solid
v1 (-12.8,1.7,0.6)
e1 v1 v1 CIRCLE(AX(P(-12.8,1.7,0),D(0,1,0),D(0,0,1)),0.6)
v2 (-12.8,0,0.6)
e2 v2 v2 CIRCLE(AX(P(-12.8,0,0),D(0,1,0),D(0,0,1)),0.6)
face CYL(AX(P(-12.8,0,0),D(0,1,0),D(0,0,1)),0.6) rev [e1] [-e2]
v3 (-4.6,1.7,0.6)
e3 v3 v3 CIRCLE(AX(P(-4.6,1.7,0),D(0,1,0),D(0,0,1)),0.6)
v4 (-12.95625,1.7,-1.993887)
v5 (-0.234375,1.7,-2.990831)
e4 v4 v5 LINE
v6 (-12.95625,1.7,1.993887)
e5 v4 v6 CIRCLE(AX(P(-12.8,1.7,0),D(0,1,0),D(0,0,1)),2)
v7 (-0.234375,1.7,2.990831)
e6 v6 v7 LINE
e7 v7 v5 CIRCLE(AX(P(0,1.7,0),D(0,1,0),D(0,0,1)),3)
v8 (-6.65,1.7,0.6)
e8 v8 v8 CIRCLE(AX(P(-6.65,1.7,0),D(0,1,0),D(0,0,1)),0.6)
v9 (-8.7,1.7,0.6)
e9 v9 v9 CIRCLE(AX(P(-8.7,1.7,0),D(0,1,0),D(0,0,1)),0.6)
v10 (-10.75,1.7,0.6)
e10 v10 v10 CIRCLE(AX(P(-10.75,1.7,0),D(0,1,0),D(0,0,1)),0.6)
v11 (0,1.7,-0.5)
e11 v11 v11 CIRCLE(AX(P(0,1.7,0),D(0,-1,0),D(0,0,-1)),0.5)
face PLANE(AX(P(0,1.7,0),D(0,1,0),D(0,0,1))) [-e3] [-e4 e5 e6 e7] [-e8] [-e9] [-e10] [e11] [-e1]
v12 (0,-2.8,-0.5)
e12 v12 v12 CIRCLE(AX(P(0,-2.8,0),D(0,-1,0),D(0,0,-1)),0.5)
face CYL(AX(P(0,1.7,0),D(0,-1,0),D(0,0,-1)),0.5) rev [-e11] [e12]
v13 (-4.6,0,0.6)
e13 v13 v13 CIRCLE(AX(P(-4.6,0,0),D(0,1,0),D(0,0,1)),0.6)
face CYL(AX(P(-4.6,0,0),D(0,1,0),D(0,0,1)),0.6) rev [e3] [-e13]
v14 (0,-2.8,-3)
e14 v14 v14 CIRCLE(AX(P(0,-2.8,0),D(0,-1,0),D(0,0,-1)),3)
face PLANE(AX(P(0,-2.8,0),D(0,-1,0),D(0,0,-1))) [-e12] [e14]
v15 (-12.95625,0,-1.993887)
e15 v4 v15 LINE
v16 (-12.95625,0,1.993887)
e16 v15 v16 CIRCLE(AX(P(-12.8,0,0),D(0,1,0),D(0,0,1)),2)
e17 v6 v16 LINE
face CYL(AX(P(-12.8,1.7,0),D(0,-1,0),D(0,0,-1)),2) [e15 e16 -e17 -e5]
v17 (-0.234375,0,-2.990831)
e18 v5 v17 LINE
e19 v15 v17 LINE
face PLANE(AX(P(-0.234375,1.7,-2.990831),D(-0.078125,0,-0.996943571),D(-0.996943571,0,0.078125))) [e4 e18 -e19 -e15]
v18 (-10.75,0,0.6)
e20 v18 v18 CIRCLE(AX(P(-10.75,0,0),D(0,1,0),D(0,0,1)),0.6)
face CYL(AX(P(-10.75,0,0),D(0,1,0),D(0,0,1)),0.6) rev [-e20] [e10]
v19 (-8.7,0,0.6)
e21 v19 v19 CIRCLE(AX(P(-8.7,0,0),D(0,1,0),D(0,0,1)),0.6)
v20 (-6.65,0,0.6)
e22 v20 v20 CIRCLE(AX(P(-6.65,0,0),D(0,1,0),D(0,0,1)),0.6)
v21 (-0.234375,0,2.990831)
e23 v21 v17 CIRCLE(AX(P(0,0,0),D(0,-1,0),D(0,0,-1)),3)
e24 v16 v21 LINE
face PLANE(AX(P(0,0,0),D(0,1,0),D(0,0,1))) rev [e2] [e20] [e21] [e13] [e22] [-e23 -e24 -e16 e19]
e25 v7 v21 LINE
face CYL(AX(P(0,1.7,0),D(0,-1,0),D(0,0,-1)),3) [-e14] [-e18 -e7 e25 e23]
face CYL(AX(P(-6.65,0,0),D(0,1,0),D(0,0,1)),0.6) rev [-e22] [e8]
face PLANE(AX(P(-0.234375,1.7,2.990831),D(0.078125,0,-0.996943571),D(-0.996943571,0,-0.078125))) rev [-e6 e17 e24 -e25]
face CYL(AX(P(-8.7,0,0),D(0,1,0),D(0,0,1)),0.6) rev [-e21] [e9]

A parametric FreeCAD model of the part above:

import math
import FreeCAD as App
import Part
import Sketcher
Q = App.Units.Quantity

doc = App.newDocument("Part")
body = doc.addObject("PartDesign::Body", "Body")

# Sketch on XZ plane
sketch1 = doc.addObject("Sketcher::SketchObject", "Sketch")
body.addObject(sketch1)
sketch1.AttachmentSupport = (doc.XZ_Plane, [""])
sketch1.MapMode = "FlatFace"
sketch1.addGeometry([
    Part.ArcOfCircle(Part.Circle(App.Vector(-12.8, 0, 0), App.Vector(0, 0, 1), 2), math.radians(180), math.radians(266)),  # 0
    Part.ArcOfCircle(Part.Circle(App.Vector(-12.8, 0, 0), App.Vector(0, 0, 1), 2), math.radians(94), math.radians(180)),  # 1
    Part.LineSegment(App.Vector(-13, 2, 0), App.Vector(-0.2, 3, 0)),  # 2
    Part.ArcOfCircle(Part.Circle(App.Vector(0, 0, 0), App.Vector(0, 0, 1), 3), math.radians(0), math.radians(94)),  # 3
    Part.ArcOfCircle(Part.Circle(App.Vector(0, 0, 0), App.Vector(0, 0, 1), 3), math.radians(-94), math.radians(0)),  # 4
    Part.LineSegment(App.Vector(-0.2, -3, 0), App.Vector(-13, -2, 0)),  # 5
], False)
sketch1.addConstraint([
    Sketcher.Constraint("Tangent", 0, 1, 1, 2),
    Sketcher.Constraint("Tangent", 1, 1, 2, 1),
    Sketcher.Constraint("Tangent", 2, 2, 3, 2),
    Sketcher.Constraint("Tangent", 3, 1, 4, 2),
    Sketcher.Constraint("Tangent", 4, 1, 5, 1),
    Sketcher.Constraint("Tangent", 5, 2, 0, 2),
    Sketcher.Constraint("Coincident", 3, 3, -1, 1),
    Sketcher.Constraint("Equal", 0, 1),
    Sketcher.Constraint("Equal", 3, 4),
    Sketcher.Constraint("PointOnObject", 0, 3, -1),
    Sketcher.Constraint("PointOnObject", 0, 1, -1),
    Sketcher.Constraint("PointOnObject", 3, 1, -1),
    Sketcher.Constraint("Radius", 0, Q("2 mm")),
    Sketcher.Constraint("Radius", 3, Q("3 mm")),
    Sketcher.Constraint("DistanceX", 0, 3, -1, 1, Q("12.8 mm")),
])
pad1 = doc.addObject("PartDesign::Pad", "Pad")
body.addObject(pad1)
pad1.Profile = sketch1
pad1.Length = 1.7
pad1.Reversed = True

# Sketch on XZ plane
sketch2 = doc.addObject("Sketcher::SketchObject", "Sketch001")
body.addObject(sketch2)
sketch2.AttachmentSupport = (doc.XZ_Plane, [""])
sketch2.MapMode = "FlatFace"
sketch2.AttachmentOffset = App.Placement(App.Vector(0, 0, -1.7), App.Rotation())
sketch2.addGeometry([
    Part.Circle(App.Vector(-12.8, 0, 0), App.Vector(0, 0, 1), 0.6),  # 0
    Part.Circle(App.Vector(-10.8, 0, 0), App.Vector(0, 0, 1), 0.6),  # 1
    Part.Circle(App.Vector(-8.7, 0, 0), App.Vector(0, 0, 1), 0.6),  # 2
    Part.Circle(App.Vector(-6.7, 0, 0), App.Vector(0, 0, 1), 0.6),  # 3
    Part.Circle(App.Vector(-4.6, 0, 0), App.Vector(0, 0, 1), 0.6),  # 4
], False)
sketch2.addConstraint([
    Sketcher.Constraint("Equal", 0, 1),
    Sketcher.Constraint("Equal", 1, 2),
    Sketcher.Constraint("Equal", 2, 3),
    Sketcher.Constraint("Equal", 3, 4),
    Sketcher.Constraint("PointOnObject", 0, 3, -1),
    Sketcher.Constraint("PointOnObject", 1, 3, -1),
    Sketcher.Constraint("PointOnObject", 2, 3, -1),
    Sketcher.Constraint("PointOnObject", 3, 3, -1),
    Sketcher.Constraint("PointOnObject", 4, 3, -1),
    Sketcher.Constraint("Diameter", 0, Q("1.2 mm")),
    Sketcher.Constraint("DistanceX", 0, 3, -1, 1, Q("12.8 mm")),
    Sketcher.Constraint("DistanceX", 2, 3, -1, 1, Q("8.7 mm")),
    Sketcher.Constraint("DistanceX", 4, 3, -1, 1, Q("4.6 mm")),
    Sketcher.Constraint("DistanceX", 1, 3, 3, 3, Q("4.1 mm")),
    Sketcher.Constraint("DistanceX", 1, 3, -1, 1, Q("10.75 mm")),
])
pocket1 = doc.addObject("PartDesign::Pocket", "Pocket")
body.addObject(pocket1)
pocket1.Profile = sketch2
pocket1.Type = "ThroughAll"
pocket1.Reversed = True

# Sketch on XZ plane
sketch3 = doc.addObject("Sketcher::SketchObject", "Sketch002")
body.addObject(sketch3)
sketch3.AttachmentSupport = (doc.XZ_Plane, [""])
sketch3.MapMode = "FlatFace"
sketch3.addGeometry(Part.Circle(App.Vector(0, 0, 0), App.Vector(0, 0, 1), 3), False)
sketch3.addConstraint([
    Sketcher.Constraint("Coincident", 0, 3, -1, 1),
    Sketcher.Constraint("Diameter", 0, Q("6 mm")),
])
pad2 = doc.addObject("PartDesign::Pad", "Pad001")
body.addObject(pad2)
pad2.Profile = sketch3
pad2.Length = 2.8

# Sketch on XZ plane
sketch4 = doc.addObject("Sketcher::SketchObject", "Sketch003")
body.addObject(sketch4)
sketch4.AttachmentSupport = (doc.XZ_Plane, [""])
sketch4.MapMode = "FlatFace"
sketch4.AttachmentOffset = App.Placement(App.Vector(0, 0, 2.8), App.Rotation())
sketch4.addGeometry(Part.Circle(App.Vector(0, 0, 0), App.Vector(0, 0, 1), 0.5), False)
sketch4.addConstraint([
    Sketcher.Constraint("Coincident", 0, 3, -1, 1),
    Sketcher.Constraint("Diameter", 0, Q("1 mm")),
])
pocket2 = doc.addObject("PartDesign::Pocket", "Pocket001")
body.addObject(pocket2)
pocket2.Profile = sketch4
pocket2.Type = "ThroughAll"

doc.recompute()
